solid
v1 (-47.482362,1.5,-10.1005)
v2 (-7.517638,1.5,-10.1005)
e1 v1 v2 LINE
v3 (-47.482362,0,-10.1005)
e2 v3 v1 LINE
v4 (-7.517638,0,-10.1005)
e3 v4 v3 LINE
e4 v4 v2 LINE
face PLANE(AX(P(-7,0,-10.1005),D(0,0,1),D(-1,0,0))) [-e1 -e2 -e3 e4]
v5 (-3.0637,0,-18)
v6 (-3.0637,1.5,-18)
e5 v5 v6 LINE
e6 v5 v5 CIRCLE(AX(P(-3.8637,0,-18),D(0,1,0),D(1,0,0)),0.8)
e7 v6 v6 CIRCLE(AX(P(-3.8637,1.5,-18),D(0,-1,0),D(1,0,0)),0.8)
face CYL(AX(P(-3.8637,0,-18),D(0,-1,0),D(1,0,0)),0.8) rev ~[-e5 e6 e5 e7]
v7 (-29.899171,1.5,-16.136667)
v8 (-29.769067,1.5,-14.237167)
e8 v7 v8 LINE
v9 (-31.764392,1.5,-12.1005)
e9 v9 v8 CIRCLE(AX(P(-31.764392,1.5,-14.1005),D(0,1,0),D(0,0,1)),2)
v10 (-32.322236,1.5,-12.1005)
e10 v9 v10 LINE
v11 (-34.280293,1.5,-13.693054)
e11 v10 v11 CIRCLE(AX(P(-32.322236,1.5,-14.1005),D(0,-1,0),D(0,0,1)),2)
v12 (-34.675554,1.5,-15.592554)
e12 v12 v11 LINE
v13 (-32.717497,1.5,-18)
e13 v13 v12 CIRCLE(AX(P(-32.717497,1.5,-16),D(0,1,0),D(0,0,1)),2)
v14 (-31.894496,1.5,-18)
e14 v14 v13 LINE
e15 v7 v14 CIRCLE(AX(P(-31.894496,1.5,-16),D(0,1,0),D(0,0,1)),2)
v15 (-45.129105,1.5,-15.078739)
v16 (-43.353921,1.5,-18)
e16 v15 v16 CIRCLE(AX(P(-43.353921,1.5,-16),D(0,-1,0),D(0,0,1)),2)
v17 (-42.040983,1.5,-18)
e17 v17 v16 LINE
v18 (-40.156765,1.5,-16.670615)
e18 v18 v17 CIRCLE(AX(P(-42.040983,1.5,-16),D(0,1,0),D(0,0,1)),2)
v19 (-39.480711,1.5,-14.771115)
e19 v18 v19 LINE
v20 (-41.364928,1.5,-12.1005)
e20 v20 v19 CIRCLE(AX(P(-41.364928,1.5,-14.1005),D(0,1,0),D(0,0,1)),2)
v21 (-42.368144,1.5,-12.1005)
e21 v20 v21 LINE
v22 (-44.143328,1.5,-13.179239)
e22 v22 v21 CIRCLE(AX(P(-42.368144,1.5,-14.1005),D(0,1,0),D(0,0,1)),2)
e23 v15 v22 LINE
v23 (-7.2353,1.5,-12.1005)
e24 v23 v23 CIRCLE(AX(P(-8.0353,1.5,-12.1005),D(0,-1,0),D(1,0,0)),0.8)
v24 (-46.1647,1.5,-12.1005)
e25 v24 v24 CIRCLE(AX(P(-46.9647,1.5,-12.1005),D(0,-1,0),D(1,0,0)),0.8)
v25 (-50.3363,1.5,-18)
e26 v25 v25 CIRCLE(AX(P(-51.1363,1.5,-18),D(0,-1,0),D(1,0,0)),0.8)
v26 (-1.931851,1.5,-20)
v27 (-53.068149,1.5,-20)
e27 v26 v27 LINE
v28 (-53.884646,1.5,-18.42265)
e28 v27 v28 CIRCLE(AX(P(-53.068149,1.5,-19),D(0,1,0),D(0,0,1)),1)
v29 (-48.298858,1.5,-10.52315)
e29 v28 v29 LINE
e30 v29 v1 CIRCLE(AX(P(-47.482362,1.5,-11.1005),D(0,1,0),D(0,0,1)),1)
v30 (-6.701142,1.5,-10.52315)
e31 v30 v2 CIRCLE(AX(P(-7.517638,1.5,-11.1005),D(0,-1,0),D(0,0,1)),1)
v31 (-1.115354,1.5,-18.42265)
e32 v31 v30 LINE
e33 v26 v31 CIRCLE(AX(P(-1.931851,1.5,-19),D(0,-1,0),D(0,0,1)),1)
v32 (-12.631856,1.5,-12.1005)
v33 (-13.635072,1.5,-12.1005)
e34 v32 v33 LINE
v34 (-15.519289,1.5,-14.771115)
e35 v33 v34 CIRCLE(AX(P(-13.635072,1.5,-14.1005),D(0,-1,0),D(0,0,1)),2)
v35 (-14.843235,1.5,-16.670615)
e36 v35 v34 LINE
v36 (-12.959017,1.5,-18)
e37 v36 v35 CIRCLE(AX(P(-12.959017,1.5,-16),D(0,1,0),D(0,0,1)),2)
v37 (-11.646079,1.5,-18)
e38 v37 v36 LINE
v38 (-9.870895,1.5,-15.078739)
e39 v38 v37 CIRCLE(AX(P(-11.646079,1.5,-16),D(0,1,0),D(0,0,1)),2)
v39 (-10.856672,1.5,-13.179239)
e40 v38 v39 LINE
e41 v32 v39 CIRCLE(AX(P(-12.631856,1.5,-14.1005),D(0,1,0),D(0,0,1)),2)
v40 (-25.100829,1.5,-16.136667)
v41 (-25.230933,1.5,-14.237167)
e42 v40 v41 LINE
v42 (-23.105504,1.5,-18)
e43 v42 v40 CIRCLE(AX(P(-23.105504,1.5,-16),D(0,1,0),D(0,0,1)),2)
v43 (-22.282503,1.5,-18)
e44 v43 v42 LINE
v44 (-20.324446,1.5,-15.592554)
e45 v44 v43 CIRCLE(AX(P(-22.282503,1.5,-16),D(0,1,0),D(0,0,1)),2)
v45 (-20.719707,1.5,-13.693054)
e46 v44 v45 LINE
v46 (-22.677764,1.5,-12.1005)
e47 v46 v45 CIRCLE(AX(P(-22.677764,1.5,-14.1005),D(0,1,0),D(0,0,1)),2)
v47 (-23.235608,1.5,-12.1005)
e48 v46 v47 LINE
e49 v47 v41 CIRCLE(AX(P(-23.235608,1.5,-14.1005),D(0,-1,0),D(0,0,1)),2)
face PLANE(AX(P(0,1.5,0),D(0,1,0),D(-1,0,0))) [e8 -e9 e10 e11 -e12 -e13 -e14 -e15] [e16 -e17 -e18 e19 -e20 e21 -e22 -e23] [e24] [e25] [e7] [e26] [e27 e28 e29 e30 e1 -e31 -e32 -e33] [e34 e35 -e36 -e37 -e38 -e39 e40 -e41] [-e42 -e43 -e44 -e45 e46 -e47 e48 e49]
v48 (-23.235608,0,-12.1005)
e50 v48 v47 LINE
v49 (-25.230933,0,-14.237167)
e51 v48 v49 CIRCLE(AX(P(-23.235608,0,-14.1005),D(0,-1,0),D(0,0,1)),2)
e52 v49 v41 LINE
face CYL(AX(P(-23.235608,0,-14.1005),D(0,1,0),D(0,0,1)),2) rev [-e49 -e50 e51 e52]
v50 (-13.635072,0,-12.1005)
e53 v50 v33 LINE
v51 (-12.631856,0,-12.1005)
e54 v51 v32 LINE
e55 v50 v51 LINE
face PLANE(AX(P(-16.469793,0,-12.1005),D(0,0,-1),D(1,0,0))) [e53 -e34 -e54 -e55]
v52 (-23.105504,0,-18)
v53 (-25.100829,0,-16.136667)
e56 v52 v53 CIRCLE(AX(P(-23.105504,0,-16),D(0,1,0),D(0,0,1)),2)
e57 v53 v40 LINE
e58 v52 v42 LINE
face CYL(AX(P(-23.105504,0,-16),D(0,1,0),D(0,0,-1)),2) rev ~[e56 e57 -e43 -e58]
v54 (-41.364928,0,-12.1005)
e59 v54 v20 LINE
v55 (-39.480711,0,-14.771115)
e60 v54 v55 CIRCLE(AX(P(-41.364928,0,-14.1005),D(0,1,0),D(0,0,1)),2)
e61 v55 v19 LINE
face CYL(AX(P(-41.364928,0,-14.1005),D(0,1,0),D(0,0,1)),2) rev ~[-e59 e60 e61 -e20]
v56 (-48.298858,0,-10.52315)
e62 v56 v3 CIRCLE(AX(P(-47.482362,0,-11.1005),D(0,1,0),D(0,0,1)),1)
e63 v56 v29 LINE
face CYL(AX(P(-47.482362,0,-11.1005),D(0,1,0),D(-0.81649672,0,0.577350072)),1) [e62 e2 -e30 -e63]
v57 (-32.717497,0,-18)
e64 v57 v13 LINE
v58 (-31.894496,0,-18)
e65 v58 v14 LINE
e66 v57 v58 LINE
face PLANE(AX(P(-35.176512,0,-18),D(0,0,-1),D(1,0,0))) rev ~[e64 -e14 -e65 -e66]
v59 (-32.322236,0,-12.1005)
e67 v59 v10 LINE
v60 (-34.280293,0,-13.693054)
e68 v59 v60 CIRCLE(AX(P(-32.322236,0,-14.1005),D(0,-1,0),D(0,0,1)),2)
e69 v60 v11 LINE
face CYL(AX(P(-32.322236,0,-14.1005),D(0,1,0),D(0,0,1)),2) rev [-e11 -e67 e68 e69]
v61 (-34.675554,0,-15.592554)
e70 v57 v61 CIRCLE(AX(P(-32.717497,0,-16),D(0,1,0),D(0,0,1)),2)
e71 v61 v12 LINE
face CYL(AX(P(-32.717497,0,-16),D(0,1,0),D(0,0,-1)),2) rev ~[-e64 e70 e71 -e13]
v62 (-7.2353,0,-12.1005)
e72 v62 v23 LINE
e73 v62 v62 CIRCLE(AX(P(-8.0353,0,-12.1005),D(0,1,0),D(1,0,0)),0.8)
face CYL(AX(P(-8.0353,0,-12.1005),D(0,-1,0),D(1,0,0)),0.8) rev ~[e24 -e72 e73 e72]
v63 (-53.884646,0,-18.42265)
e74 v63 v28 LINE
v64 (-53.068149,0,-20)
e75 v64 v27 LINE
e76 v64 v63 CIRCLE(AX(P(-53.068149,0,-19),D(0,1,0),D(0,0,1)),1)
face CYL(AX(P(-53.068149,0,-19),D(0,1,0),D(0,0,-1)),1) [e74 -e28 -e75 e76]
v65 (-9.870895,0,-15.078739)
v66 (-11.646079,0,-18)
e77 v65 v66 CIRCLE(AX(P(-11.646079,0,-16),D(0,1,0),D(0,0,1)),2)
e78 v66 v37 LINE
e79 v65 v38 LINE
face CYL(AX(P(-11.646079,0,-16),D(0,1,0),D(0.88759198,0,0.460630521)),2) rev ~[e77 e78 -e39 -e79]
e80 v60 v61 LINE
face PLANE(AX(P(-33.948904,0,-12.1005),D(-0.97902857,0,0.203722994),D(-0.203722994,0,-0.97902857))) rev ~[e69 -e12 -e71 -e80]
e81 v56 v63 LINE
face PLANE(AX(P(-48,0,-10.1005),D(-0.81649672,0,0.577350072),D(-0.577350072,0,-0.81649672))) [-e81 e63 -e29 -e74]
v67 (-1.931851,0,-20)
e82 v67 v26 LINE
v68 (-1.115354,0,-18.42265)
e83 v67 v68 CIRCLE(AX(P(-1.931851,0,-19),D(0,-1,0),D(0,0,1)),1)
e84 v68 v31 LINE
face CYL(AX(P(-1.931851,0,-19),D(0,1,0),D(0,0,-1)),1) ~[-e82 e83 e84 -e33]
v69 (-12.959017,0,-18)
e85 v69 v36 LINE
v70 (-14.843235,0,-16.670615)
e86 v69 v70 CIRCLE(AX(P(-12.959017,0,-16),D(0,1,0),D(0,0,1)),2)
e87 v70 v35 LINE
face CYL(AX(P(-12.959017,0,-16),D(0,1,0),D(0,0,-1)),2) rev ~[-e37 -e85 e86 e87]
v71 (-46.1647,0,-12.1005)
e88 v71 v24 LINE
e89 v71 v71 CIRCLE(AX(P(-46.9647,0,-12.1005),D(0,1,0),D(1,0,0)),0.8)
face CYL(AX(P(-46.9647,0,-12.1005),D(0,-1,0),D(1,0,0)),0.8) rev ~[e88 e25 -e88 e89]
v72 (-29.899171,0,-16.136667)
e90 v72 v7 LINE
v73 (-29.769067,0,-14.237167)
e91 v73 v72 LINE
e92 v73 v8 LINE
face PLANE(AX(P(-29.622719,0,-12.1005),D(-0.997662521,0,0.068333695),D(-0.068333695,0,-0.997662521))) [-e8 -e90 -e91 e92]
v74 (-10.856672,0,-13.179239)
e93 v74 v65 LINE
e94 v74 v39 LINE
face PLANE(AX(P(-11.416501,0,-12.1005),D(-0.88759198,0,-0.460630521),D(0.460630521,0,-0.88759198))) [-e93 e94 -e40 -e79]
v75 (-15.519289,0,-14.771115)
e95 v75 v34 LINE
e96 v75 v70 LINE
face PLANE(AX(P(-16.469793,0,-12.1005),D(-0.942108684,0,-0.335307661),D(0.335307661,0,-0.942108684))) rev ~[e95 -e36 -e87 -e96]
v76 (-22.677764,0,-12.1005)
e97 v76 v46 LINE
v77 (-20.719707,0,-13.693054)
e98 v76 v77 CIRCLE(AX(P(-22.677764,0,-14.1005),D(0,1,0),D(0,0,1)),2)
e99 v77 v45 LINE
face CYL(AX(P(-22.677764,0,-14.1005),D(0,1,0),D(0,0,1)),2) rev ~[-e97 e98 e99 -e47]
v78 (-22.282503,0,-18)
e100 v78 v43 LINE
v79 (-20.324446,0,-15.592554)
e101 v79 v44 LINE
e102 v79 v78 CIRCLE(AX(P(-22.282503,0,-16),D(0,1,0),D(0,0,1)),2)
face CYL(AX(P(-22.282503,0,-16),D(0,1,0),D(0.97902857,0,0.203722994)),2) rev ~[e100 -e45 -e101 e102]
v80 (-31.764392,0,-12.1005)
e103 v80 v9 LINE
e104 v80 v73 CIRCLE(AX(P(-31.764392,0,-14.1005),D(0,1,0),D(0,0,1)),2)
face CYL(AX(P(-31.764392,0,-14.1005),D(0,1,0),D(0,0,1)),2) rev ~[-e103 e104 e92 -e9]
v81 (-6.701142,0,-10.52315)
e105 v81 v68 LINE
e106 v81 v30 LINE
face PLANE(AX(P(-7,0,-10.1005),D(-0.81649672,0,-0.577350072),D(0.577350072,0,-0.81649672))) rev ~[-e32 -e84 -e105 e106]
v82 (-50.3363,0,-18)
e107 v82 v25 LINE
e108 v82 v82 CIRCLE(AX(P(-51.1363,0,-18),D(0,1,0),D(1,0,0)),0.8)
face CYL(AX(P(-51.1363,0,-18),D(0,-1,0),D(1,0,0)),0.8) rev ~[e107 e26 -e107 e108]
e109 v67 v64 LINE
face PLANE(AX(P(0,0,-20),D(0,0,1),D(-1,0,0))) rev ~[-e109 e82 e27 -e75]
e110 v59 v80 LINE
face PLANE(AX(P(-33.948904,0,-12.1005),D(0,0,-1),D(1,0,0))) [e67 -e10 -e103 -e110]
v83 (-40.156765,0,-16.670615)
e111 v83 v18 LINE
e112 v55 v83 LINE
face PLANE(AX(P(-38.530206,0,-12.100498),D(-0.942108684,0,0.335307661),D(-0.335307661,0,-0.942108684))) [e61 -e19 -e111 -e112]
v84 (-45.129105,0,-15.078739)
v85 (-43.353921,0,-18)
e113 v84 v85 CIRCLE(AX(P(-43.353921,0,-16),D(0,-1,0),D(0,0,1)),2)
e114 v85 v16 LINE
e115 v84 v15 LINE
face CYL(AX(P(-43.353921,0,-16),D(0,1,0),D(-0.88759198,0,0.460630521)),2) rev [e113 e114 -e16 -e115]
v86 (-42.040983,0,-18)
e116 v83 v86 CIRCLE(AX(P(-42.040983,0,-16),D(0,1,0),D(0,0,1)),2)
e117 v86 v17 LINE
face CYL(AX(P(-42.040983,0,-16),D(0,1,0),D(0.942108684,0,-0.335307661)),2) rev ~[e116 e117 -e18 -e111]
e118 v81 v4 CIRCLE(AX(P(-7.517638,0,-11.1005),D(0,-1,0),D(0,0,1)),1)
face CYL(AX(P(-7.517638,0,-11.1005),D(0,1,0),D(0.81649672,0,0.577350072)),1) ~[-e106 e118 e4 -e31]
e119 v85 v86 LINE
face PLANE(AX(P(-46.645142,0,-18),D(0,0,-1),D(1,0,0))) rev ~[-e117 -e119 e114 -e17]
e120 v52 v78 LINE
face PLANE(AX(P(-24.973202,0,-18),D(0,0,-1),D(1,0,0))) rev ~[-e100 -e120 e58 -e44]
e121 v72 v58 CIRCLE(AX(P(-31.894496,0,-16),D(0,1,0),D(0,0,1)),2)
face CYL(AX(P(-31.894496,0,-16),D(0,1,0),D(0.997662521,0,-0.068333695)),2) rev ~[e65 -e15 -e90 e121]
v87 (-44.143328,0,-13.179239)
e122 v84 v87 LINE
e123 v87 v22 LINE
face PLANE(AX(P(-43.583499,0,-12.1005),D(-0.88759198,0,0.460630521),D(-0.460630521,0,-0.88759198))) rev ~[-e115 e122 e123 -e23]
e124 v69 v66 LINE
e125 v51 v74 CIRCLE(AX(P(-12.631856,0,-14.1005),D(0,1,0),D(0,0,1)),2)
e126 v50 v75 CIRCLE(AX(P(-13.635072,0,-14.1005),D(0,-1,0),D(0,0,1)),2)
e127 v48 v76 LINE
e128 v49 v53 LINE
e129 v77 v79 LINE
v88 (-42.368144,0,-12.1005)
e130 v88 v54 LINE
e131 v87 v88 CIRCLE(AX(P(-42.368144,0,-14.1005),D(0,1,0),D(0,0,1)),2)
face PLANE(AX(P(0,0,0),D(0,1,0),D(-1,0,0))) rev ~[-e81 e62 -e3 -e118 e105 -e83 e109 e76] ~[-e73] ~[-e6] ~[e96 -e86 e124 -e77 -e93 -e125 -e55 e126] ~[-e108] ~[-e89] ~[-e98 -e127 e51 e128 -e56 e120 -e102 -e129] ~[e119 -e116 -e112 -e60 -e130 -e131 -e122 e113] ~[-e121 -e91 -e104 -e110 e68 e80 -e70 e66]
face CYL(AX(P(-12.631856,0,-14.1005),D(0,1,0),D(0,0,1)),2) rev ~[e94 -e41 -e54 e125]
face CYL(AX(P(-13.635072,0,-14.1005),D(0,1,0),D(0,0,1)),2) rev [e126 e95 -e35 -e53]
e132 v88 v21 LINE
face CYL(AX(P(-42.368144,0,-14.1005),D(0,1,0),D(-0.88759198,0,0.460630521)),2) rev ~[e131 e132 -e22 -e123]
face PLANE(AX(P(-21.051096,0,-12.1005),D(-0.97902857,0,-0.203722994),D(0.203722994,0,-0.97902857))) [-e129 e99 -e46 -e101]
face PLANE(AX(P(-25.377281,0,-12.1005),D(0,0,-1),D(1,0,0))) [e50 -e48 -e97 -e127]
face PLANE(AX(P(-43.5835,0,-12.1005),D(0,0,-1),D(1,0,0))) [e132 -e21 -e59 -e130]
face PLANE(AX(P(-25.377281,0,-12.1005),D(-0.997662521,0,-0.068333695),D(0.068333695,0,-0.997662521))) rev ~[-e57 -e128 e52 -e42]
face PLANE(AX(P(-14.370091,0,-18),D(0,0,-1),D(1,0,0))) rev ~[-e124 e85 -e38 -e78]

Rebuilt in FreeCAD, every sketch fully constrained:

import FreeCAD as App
import Part
import Sketcher

V = App.Vector
Q = App.Units.Quantity


def edges_at(feature, points):
    """Names of the edges that pass closest to the given points."""
    edges = feature.Shape.Edges
    near = lambda p: min(range(len(edges)), key=lambda i: edges[i].distToShape(Part.Vertex(*p))[0])
    return sorted({f"Edge{near(p) + 1}" for p in points})


def add_polygon(sketch, points):
    """Adds a closed chain of lines whose ends are joined by coincident constraints."""
    first, n = sketch.GeometryCount, len(points)
    for a, b in zip(points, points[1:] + points[:1]):
        sketch.addGeometry(Part.LineSegment(App.Vector(*a, 0), App.Vector(*b, 0)), False)
    for i in range(n):
        sketch.addConstraint(Sketcher.Constraint("Coincident", first + i, 2, first + (i + 1) % n, 1))

doc = App.newDocument("Part")
params = doc.addObject("Spreadsheet::Sheet", "Params")
for row, (alias, value) in enumerate([
    ("sketch1_width", "55 mm"),
    ("sketch1_height", "20 mm"),
    ("pad1_length", "1.5 mm"),
    ("sketch2_width", "41 mm"),
    ("sketch2_width2", "55 mm"),
    ("sketch2_height", "20 mm"),
    ("fillet_radius", "1 mm"),
    ("sketch3_diameter", "1.6 mm"),
    ("fillet2_radius", "2 mm"),
], start=1):
    params.set(f"A{row}", alias)
    params.set(f"B{row}", "=" + value)
    params.setAlias(f"B{row}", alias)

body = doc.addObject("PartDesign::Body", "Body")

sketch1 = doc.addObject("Sketcher::SketchObject", "Sketch")
body.addObject(sketch1)
sketch1.AttachmentSupport = (doc.XZ_Plane, [""])
sketch1.MapMode = "FlatFace"
add_polygon(sketch1, [(-55, -20), (-55, 0), (0, 0), (0, -20)])
sketch1.addConstraint([
    Sketcher.Constraint("Vertical", 0),
    Sketcher.Constraint("Horizontal", 1),
    Sketcher.Constraint("Vertical", 2),
    Sketcher.Constraint("Horizontal", 3),
    Sketcher.Constraint("Coincident", 1, 2, -1, 1),
    Sketcher.Constraint("DistanceX", 1, 1, 1, 2, Q("55 mm")),
    Sketcher.Constraint("DistanceY", 0, 1, 0, 2, Q("20 mm")),
])
sketch1.setExpression("Constraints[9]", "Params.sketch1_width")
sketch1.setExpression("Constraints[10]", "Params.sketch1_height")
pad1 = doc.addObject("PartDesign::Pad", "Pad")
body.addObject(pad1)
pad1.Profile = sketch1
pad1.setExpression("Length", "Params.pad1_length")
pad1.Reversed = True

sketch2 = doc.addObject("Sketcher::SketchObject", "Sketch001")
body.addObject(sketch2)
sketch2.AttachmentSupport = (doc.XZ_Plane, [""])
sketch2.MapMode = "FlatFace"
add_polygon(sketch2, [(-48, -10), (-7, -10), (0, -20), (0, 0), (-55, 0), (-55, -20)])
sketch2.addConstraint([
    Sketcher.Constraint("Horizontal", 0),
    Sketcher.Constraint("Vertical", 2),
    Sketcher.Constraint("Horizontal", 3),
    Sketcher.Constraint("Vertical", 4),
    Sketcher.Constraint("Coincident", 2, 2, -1, 1),
    Sketcher.Constraint("Horizontal", 1, 2, 4, 2),
    Sketcher.Constraint("Equal", 1, 5),
    Sketcher.Constraint("DistanceX", 0, 1, 0, 2, Q("41 mm")),
    Sketcher.Constraint("DistanceX", 3, 2, 3, 1, Q("55 mm")),
    Sketcher.Constraint("DistanceY", 2, 1, 2, 2, Q("20 mm")),
    Sketcher.Constraint("Distance", 1, Q("12.1244 mm")),
])
sketch2.setExpression("Constraints[13]", "Params.sketch2_width")
sketch2.setExpression("Constraints[14]", "Params.sketch2_width2")
sketch2.setExpression("Constraints[15]", "Params.sketch2_height")
pocket1 = doc.addObject("PartDesign::Pocket", "Pocket")
body.addObject(pocket1)
pocket1.Profile = sketch2
pocket1.Type = "ThroughAll"
doc.recompute()

fillet = doc.addObject("PartDesign::Fillet", "Fillet")
body.addObject(fillet)
fillet.Base = (pocket1, edges_at(pocket1, [
    (-7, 0.75, -10.101),
    (0, 0.75, -20),
    (-48, 0.75, -10.101),
    (-55, 0.75, -20),
]))
fillet.setExpression("Radius", "Params.fillet_radius")

sketch3 = doc.addObject("Sketcher::SketchObject", "Sketch002")
body.addObject(sketch3)
sketch3.AttachmentSupport = (doc.XZ_Plane, [""])
sketch3.MapMode = "FlatFace"
sketch3.addGeometry(Part.Circle(V(-51.1, -18, 0), V(0, 0, 1), 0.8), False)
sketch3.addGeometry(Part.Circle(V(-47, -12.1, 0), V(0, 0, 1), 0.8), False)
add_polygon(sketch3, [(-43.6, -12.1), (-46.6, -18), (-40.6, -18), (-38.5, -12.1)])
add_polygon(sketch3, [(-33.9, -12.1), (-35.2, -18), (-30, -18), (-29.6, -12.1)])
add_polygon(sketch3, [(-21.1, -12.1), (-25.4, -12.1), (-25, -18), (-19.8, -18)])
add_polygon(sketch3, [(-11.4, -12.1), (-16.5, -12.1), (-14.4, -18), (-8.4, -18)])
sketch3.addGeometry(Part.Circle(V(-8, -12.1, 0), V(0, 0, 1), 0.8), False)
sketch3.addGeometry(Part.Circle(V(-3.9, -18, 0), V(0, 0, 1), 0.8), False)
sketch3.addConstraint([
    Sketcher.Constraint("Horizontal", 3),
    Sketcher.Constraint("Horizontal", 5),
    Sketcher.Constraint("Horizontal", 7),
    Sketcher.Constraint("Horizontal", 9),
    Sketcher.Constraint("Horizontal", 10),
    Sketcher.Constraint("Horizontal", 12),
    Sketcher.Constraint("Horizontal", 14),
    Sketcher.Constraint("Horizontal", 16),
    Sketcher.Constraint("Equal", 0, 1),
    Sketcher.Constraint("Equal", 1, 18),
    Sketcher.Constraint("Equal", 18, 19),
    Sketcher.Constraint("Horizontal", 1, 3, 18, 3),
    Sketcher.Constraint("Horizontal", 0, 3, 19, 3),
    Sketcher.Constraint("Horizontal", 19, 3, 2, 2),
    Sketcher.Constraint("Horizontal", 18, 3, 4, 2),
    Sketcher.Constraint("Horizontal", 3, 2, 6, 2),
    Sketcher.Constraint("Horizontal", 5, 2, 8, 2),
    Sketcher.Constraint("Horizontal", 9, 2, 10, 2),
    Sketcher.Constraint("Horizontal", 7, 2, 11, 2),
    Sketcher.Constraint("Horizontal", 13, 2, 14, 2),
    Sketcher.Constraint("Horizontal", 12, 2, 15, 2),
    Sketcher.Constraint("Equal", 9, 10),
    Sketcher.Constraint("Equal", 7, 12),
    Sketcher.Constraint("Equal", 5, 14),
    Sketcher.Constraint("Equal", 3, 16),
    Sketcher.Constraint("Equal", 8, 11),
    Sketcher.Constraint("Equal", 4, 15),
    Sketcher.Constraint("Diameter", 0, Q("1.6 mm")),
    Sketcher.Constraint("DistanceY", 0, 3, -1, 1, Q("18 mm")),
    Sketcher.Constraint("DistanceX", 3, 2, -1, 1, Q("40.63 mm")),
    Sketcher.Constraint("DistanceX", 15, 2, -1, 1, Q("14.37 mm")),
    Sketcher.Constraint("Distance", 4, Q("6.262 mm")),
    Sketcher.Constraint("DistanceX", 3, 1, 3, 2, Q("6.0152 mm")),
    Sketcher.Constraint("DistanceX", 5, 2, 5, 1, Q("5.0533 mm")),
    Sketcher.Constraint("DistanceX", 7, 1, 7, 2, Q("5.1497 mm")),
    Sketcher.Constraint("DistanceX", 9, 2, 9, 1, Q("4.3262 mm")),
    Sketcher.Constraint("DistanceX", 9, 2, -1, 1, Q("33.949 mm")),
    Sketcher.Constraint("DistanceX", 13, 2, -1, 1, Q("21.051 mm")),
    Sketcher.Constraint("DistanceX", 0, 3, 18, 3, Q("43.101 mm")),
    Sketcher.Constraint("DistanceX", 1, 3, 19, 3, Q("43.101 mm")),
    Sketcher.Constraint("DistanceX", 2, 2, 4, 2, Q("8.115 mm")),
    Sketcher.Constraint("DistanceX", 0, 3, 4, 2, Q("12.606 mm")),
    Sketcher.Constraint("DistanceX", 5, 2, 6, 2, Q("8.407 mm")),
    Sketcher.Constraint("DistanceX", 1, 3, -1, 1, Q("46.9647 mm")),
])
sketch3.setExpression("Constraints[43]", "Params.sketch3_diameter")
pocket2 = doc.addObject("PartDesign::Pocket", "Pocket001")
body.addObject(pocket2)
pocket2.Profile = sketch3
pocket2.Type = "ThroughAll"
doc.recompute()

fillet2 = doc.addObject("PartDesign::Fillet", "Fillet001")
body.addObject(fillet2)
fillet2.Base = (pocket2, edges_at(pocket2, [
    (-43.584, 0.75, -12.101),
    (-38.53, 0.75, -12.101),
    (-46.645, 0.75, -18),
    (-40.63, 0.75, -18),
    (-33.949, 0.75, -12.101),
    (-29.623, 0.75, -12.101),
    (-35.176, 0.75, -18),
    (-30.027, 0.75, -18),
    (-24.973, 0.75, -18),
    (-25.377, 0.75, -12.101),
    (-21.051, 0.75, -12.101),
    (-19.823, 0.75, -18),
    (-11.416, 0.75, -12.101),
    (-8.355, 0.75, -18),
    (-14.37, 0.75, -18),
    (-16.47, 0.75, -12.101),
]))
fillet2.setExpression("Radius", "Params.fillet2_radius")

doc.recompute()
